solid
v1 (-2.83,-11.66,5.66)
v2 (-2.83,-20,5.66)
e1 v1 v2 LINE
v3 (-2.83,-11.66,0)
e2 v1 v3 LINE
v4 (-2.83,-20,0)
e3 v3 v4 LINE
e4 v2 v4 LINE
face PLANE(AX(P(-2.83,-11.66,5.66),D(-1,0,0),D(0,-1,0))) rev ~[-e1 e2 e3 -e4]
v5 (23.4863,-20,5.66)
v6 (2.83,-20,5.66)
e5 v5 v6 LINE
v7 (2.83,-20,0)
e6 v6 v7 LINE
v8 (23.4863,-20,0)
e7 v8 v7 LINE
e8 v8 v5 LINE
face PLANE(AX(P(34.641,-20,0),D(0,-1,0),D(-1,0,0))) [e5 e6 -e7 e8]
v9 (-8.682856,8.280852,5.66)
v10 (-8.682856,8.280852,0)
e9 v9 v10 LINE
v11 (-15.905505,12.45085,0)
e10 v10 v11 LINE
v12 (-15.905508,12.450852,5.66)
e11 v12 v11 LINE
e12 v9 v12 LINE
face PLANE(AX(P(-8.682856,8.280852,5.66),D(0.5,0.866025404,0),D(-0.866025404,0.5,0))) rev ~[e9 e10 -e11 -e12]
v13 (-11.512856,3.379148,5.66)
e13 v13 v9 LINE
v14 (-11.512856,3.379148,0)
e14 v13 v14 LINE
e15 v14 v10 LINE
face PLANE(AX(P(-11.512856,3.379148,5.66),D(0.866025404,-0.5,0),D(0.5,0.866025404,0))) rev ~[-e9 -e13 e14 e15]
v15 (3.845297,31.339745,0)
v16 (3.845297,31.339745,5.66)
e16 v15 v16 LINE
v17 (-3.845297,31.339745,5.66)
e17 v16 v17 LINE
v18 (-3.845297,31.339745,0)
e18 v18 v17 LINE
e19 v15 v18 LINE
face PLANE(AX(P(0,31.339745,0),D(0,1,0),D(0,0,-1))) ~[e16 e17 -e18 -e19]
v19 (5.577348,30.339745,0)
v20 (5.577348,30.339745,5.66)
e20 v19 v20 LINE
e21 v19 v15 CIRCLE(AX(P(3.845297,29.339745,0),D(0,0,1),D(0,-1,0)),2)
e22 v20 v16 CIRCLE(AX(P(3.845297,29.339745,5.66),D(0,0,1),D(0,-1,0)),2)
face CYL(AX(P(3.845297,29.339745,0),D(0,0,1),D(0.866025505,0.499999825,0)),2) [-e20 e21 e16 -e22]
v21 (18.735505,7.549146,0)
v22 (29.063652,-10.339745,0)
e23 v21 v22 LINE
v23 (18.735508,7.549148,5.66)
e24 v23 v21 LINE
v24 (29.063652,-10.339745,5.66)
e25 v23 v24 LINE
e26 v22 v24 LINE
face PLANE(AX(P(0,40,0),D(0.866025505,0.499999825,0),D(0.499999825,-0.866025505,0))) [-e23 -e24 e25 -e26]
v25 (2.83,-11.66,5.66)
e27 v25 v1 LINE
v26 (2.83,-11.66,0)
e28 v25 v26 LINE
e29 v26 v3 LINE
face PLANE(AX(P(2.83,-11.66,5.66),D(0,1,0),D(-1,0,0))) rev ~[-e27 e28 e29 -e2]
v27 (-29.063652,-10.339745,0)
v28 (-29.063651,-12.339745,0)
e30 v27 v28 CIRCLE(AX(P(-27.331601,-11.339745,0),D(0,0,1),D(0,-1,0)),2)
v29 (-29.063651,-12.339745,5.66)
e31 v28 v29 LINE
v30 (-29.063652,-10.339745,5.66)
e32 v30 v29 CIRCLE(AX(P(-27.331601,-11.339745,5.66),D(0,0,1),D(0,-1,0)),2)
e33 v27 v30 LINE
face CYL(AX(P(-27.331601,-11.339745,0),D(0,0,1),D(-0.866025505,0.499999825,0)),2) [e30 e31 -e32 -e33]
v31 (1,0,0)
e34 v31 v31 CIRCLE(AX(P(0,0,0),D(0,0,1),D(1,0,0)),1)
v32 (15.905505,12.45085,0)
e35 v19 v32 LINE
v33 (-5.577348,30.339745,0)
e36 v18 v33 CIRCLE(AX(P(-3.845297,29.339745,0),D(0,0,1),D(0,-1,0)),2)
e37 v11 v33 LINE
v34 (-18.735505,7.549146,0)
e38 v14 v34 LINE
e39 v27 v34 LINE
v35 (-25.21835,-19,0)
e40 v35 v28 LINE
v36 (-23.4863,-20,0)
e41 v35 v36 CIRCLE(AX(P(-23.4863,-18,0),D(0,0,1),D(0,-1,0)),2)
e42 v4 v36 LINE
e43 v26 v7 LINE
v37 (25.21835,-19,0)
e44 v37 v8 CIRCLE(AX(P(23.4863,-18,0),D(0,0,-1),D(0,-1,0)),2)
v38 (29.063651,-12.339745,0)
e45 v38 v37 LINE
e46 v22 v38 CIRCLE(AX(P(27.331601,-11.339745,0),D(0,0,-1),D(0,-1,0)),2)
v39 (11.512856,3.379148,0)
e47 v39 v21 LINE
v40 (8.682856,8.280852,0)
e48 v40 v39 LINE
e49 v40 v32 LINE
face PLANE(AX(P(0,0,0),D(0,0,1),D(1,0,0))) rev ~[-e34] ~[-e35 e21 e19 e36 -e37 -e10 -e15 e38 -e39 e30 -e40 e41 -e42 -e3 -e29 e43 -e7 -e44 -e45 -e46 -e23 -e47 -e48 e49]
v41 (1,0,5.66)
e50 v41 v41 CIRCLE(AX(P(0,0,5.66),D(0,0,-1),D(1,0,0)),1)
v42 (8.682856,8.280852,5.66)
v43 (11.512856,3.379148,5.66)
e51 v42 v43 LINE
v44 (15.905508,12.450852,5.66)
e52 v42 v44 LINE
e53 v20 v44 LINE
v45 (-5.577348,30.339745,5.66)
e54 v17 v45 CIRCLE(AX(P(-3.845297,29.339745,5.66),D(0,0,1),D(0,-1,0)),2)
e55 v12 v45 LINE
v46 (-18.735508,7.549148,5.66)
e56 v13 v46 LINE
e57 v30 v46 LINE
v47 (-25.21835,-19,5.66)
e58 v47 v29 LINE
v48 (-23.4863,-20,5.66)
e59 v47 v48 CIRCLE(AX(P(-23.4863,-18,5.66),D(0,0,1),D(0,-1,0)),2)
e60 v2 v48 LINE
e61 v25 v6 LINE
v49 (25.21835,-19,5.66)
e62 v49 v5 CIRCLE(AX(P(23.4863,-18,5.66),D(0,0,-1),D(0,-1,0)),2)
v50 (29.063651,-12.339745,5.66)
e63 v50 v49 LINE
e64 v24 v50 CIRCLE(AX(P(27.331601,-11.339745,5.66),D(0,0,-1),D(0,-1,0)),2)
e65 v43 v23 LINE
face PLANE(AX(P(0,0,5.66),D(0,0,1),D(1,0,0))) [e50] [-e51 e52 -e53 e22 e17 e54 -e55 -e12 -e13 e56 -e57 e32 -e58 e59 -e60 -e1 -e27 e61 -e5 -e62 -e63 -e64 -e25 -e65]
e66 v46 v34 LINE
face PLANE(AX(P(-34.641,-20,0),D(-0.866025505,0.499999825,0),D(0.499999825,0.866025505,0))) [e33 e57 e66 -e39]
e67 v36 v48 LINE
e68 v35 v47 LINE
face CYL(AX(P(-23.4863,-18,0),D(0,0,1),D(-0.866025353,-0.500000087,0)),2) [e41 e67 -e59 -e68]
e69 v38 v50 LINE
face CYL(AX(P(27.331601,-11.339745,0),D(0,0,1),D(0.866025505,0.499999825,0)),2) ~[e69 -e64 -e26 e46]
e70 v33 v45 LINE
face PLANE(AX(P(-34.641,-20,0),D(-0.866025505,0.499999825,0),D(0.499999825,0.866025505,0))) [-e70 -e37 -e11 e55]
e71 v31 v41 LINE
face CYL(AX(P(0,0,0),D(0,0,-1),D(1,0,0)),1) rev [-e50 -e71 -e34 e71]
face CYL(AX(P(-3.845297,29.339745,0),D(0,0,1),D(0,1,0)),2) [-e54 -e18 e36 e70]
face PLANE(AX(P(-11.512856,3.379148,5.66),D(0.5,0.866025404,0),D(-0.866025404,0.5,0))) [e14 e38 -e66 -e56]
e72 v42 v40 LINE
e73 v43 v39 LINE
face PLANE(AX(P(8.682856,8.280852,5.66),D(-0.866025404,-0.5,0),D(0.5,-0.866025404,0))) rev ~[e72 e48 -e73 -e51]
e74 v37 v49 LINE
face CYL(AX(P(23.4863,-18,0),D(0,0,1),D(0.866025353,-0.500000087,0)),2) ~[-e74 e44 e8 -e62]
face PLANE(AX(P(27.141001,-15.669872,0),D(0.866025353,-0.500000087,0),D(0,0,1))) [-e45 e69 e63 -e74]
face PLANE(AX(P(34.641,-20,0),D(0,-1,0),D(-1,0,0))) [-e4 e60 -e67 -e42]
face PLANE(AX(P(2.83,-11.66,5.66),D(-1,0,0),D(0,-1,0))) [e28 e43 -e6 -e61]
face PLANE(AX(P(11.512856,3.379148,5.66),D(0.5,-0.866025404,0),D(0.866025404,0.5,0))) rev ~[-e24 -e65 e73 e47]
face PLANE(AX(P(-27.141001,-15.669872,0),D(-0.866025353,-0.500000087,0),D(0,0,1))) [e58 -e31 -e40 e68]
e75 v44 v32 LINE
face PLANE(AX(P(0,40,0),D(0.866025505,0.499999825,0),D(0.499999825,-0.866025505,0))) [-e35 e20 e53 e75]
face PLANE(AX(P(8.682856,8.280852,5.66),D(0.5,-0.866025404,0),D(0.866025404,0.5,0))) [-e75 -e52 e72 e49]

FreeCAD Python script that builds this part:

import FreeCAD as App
import Part
import Sketcher
Q = App.Units.Quantity


def edges_at(feature, points):
    """Names of the edges that pass closest to the given points."""
    edges = feature.Shape.Edges
    near = lambda p: min(range(len(edges)), key=lambda i: edges[i].distToShape(Part.Vertex(*p))[0])
    return sorted({f"Edge{near(p) + 1}" for p in points})


def add_polygon(sketch, points):
    """Adds a closed chain of lines whose ends are joined by coincident constraints."""
    first, n = sketch.GeometryCount, len(points)
    for a, b in zip(points, points[1:] + points[:1]):
        sketch.addGeometry(Part.LineSegment(App.Vector(*a, 0), App.Vector(*b, 0)), False)
    for i in range(n):
        sketch.addConstraint(Sketcher.Constraint("Coincident", first + i, 2, first + (i + 1) % n, 1))

doc = App.newDocument("Part")
body = doc.addObject("PartDesign::Body", "Body")

# Sketch on XY plane
sketch1 = body.newObject("Sketcher::SketchObject", "Sketch")
sketch1.AttachmentSupport = (doc.getObject("XY_Plane"), [""])
sketch1.MapMode = "FlatFace"
add_polygon(sketch1, [(34.641, -20), (0, 40), (-34.641, -20)])  # lines 0-2
sketch1.addGeometry(Part.Circle(App.Vector(0, 0, 0), App.Vector(0, 0, 1), 1), False)  # 3
sketch1.addConstraint([
    Sketcher.Constraint("Horizontal", 2),
    Sketcher.Constraint("Coincident", 3, 3, -1, 1),
    Sketcher.Constraint("PointOnObject", 0, 2, -2),
    Sketcher.Constraint("Equal", 0, 1),
    Sketcher.Constraint("Diameter", 3, 2.0),
    Sketcher.Constraint("DistanceY", 1, 2, -1, 1, 20.0),
    Sketcher.Constraint("Angle", 0, Q("120 deg")),
    Sketcher.Constraint("DistanceY", -1, 1, 0, 2, 40.0),
])
pad1 = body.newObject("PartDesign::Pad", "Pad")
pad1.Profile = sketch1
pad1.Length = 5.66

# Sketch on XY plane
sketch2 = body.newObject("Sketcher::SketchObject", "Sketch001")
sketch2.AttachmentSupport = (doc.getObject("XY_Plane"), [""])
sketch2.MapMode = "FlatFace"
sketch2.AttachmentOffset = App.Placement(App.Vector(0, 0, 5.66), App.Rotation())
sketch2.addGeometry(Part.Circle(App.Vector(0, 0, 0), App.Vector(0, 0, 1), 1), False)  # 0
add_polygon(sketch2, [(-2.83, -11.66), (-2.83, -20), (2.83, -20), (2.83, -11.66)])  # lines 1-4
sketch2.addConstraint([
    Sketcher.Constraint("Vertical", 1),
    Sketcher.Constraint("Horizontal", 2),
    Sketcher.Constraint("Vertical", 3),
    Sketcher.Constraint("Horizontal", 4),
    Sketcher.Constraint("Coincident", 0, 3, -1, 1),
    Sketcher.Constraint("Diameter", 0, 2.0),
    Sketcher.Constraint("DistanceY", 1, 2, 1, 1, 8.34),
    Sketcher.Constraint("DistanceX", 1, 2, -1, 1, 2.83),
    Sketcher.Constraint("DistanceX", -1, 1, 2, 2, 2.83),
    Sketcher.Constraint("DistanceY", 1, 2, -1, 1, 20.0),
])
pocket1 = body.newObject("PartDesign::Pocket", "Pocket")
pocket1.Profile = sketch2
pocket1.Length = 8.625
doc.recompute()

polarpattern = body.newObject("PartDesign::PolarPattern", "PolarPattern")
polarpattern.Originals = [pocket1]
polarpattern.Axis = (doc.getObject("Z_Axis"), [""])
polarpattern.Angle = 360
polarpattern.Occurrences = 3
body.Tip = polarpattern
doc.recompute()

chamfer = body.newObject("PartDesign::Chamfer", "Chamfer")
chamfer.Base = (polarpattern, edges_at(polarpattern, [(34.641, -20, 2.83), (-34.641, -20, 2.83), (0, 40, 2.83)]))
chamfer.Size = 10
doc.recompute()

fillet = body.newObject("PartDesign::Fillet", "Fillet")
fillet.Base = (chamfer, edges_at(chamfer, [
    (-29.641, -11.34, 2.83),
    (-24.641, -20, 2.83),
    (-5, 31.34, 2.83),
    (5, 31.34, 2.83),
    (29.641, -11.34, 2.83),
    (24.641, -20, 2.83),
]))
fillet.Radius = 2

doc.recompute()
